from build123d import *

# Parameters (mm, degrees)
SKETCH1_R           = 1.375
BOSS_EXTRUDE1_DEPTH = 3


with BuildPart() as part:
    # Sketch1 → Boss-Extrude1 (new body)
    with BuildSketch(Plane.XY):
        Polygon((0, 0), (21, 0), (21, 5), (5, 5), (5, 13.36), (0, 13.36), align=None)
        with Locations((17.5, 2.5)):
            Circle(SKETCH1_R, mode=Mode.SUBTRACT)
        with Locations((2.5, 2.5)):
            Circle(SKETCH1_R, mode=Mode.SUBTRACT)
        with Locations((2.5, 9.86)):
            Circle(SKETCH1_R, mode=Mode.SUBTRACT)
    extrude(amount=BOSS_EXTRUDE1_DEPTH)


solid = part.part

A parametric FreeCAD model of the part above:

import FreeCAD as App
import Part
import Sketcher

doc = App.newDocument("Part")
body = doc.addObject("PartDesign::Body", "Body")

# Sketch on XY plane
sketch1 = body.newObject("Sketcher::SketchObject", "Sketch")
sketch1.AttachmentSupport = (doc.getObject("XY_Plane"), [""])
sketch1.MapMode = "FlatFace"
sketch1.addGeometry(Part.LineSegment(App.Vector(0, 0, 0), App.Vector(21, 0, 0)), False)
sketch1.addGeometry(Part.LineSegment(App.Vector(21, 0, 0), App.Vector(21, 5, 0)), False)
sketch1.addGeometry(Part.LineSegment(App.Vector(21, 5, 0), App.Vector(5, 5, 0)), False)
sketch1.addGeometry(Part.LineSegment(App.Vector(5, 5, 0), App.Vector(5, 13.36, 0)), False)
sketch1.addGeometry(Part.LineSegment(App.Vector(5, 13.36, 0), App.Vector(0, 13.36, 0)), False)
sketch1.addGeometry(Part.LineSegment(App.Vector(0, 13.36, 0), App.Vector(0, 0, 0)), False)
sketch1.addGeometry(Part.Circle(App.Vector(2.5, 2.5, 0), App.Vector(0, 0, 1), 1.375), False)
sketch1.addGeometry(Part.Circle(App.Vector(17.5, 2.5, 0), App.Vector(0, 0, 1), 1.375), False)
sketch1.addGeometry(Part.Circle(App.Vector(2.5, 9.86, 0), App.Vector(0, 0, 1), 1.375), False)
sketch1.addConstraint(Sketcher.Constraint("Coincident", 0, 2, 1, 1))
sketch1.addConstraint(Sketcher.Constraint("Coincident", 1, 2, 2, 1))
sketch1.addConstraint(Sketcher.Constraint("Coincident", 2, 2, 3, 1))
sketch1.addConstraint(Sketcher.Constraint("Coincident", 3, 2, 4, 1))
sketch1.addConstraint(Sketcher.Constraint("Coincident", 4, 2, 5, 1))
sketch1.addConstraint(Sketcher.Constraint("Coincident", 5, 2, 0, 1))
sketch1.addConstraint(Sketcher.Constraint("Horizontal", 0))
sketch1.addConstraint(Sketcher.Constraint("Vertical", 1))
sketch1.addConstraint(Sketcher.Constraint("Horizontal", 2))
sketch1.addConstraint(Sketcher.Constraint("Vertical", 3))
sketch1.addConstraint(Sketcher.Constraint("Horizontal", 4))
sketch1.addConstraint(Sketcher.Constraint("Vertical", 5))
sketch1.addConstraint(Sketcher.Constraint("Coincident", 5, 2, -1, 1))
sketch1.addConstraint(Sketcher.Constraint("Equal", 6, 7))
sketch1.addConstraint(Sketcher.Constraint("Equal", 7, 8))
sketch1.addConstraint(Sketcher.Constraint("Horizontal", 6, 3, 7, 3))
sketch1.addConstraint(Sketcher.Constraint("Vertical", 6, 3, 8, 3))
sketch1.addConstraint(Sketcher.Constraint("Equal", 4, 1))
sketch1.addConstraint(Sketcher.Constraint("Diameter", 6, 2.75))
sketch1.addConstraint(Sketcher.Constraint("DistanceX", 0, 1, 0, 2, 21.0))
sketch1.addConstraint(Sketcher.Constraint("DistanceX", 2, 2, 2, 1, 16.0))
sketch1.addConstraint(Sketcher.Constraint("DistanceX", 6, 3, 7, 3, 15.0))
sketch1.addConstraint(Sketcher.Constraint("DistanceY", 3, 1, 3, 2, 8.36))
sketch1.addConstraint(Sketcher.Constraint("DistanceX", -1, 1, 6, 3, 2.5))
sketch1.addConstraint(Sketcher.Constraint("DistanceY", -1, 1, 6, 3, 2.5))
sketch1.addConstraint(Sketcher.Constraint("DistanceY", 8, 3, 3, 2, 3.5))
pad1 = body.newObject("PartDesign::Pad", "Pad")
pad1.Profile = sketch1
pad1.Length = 3

doc.recompute()
